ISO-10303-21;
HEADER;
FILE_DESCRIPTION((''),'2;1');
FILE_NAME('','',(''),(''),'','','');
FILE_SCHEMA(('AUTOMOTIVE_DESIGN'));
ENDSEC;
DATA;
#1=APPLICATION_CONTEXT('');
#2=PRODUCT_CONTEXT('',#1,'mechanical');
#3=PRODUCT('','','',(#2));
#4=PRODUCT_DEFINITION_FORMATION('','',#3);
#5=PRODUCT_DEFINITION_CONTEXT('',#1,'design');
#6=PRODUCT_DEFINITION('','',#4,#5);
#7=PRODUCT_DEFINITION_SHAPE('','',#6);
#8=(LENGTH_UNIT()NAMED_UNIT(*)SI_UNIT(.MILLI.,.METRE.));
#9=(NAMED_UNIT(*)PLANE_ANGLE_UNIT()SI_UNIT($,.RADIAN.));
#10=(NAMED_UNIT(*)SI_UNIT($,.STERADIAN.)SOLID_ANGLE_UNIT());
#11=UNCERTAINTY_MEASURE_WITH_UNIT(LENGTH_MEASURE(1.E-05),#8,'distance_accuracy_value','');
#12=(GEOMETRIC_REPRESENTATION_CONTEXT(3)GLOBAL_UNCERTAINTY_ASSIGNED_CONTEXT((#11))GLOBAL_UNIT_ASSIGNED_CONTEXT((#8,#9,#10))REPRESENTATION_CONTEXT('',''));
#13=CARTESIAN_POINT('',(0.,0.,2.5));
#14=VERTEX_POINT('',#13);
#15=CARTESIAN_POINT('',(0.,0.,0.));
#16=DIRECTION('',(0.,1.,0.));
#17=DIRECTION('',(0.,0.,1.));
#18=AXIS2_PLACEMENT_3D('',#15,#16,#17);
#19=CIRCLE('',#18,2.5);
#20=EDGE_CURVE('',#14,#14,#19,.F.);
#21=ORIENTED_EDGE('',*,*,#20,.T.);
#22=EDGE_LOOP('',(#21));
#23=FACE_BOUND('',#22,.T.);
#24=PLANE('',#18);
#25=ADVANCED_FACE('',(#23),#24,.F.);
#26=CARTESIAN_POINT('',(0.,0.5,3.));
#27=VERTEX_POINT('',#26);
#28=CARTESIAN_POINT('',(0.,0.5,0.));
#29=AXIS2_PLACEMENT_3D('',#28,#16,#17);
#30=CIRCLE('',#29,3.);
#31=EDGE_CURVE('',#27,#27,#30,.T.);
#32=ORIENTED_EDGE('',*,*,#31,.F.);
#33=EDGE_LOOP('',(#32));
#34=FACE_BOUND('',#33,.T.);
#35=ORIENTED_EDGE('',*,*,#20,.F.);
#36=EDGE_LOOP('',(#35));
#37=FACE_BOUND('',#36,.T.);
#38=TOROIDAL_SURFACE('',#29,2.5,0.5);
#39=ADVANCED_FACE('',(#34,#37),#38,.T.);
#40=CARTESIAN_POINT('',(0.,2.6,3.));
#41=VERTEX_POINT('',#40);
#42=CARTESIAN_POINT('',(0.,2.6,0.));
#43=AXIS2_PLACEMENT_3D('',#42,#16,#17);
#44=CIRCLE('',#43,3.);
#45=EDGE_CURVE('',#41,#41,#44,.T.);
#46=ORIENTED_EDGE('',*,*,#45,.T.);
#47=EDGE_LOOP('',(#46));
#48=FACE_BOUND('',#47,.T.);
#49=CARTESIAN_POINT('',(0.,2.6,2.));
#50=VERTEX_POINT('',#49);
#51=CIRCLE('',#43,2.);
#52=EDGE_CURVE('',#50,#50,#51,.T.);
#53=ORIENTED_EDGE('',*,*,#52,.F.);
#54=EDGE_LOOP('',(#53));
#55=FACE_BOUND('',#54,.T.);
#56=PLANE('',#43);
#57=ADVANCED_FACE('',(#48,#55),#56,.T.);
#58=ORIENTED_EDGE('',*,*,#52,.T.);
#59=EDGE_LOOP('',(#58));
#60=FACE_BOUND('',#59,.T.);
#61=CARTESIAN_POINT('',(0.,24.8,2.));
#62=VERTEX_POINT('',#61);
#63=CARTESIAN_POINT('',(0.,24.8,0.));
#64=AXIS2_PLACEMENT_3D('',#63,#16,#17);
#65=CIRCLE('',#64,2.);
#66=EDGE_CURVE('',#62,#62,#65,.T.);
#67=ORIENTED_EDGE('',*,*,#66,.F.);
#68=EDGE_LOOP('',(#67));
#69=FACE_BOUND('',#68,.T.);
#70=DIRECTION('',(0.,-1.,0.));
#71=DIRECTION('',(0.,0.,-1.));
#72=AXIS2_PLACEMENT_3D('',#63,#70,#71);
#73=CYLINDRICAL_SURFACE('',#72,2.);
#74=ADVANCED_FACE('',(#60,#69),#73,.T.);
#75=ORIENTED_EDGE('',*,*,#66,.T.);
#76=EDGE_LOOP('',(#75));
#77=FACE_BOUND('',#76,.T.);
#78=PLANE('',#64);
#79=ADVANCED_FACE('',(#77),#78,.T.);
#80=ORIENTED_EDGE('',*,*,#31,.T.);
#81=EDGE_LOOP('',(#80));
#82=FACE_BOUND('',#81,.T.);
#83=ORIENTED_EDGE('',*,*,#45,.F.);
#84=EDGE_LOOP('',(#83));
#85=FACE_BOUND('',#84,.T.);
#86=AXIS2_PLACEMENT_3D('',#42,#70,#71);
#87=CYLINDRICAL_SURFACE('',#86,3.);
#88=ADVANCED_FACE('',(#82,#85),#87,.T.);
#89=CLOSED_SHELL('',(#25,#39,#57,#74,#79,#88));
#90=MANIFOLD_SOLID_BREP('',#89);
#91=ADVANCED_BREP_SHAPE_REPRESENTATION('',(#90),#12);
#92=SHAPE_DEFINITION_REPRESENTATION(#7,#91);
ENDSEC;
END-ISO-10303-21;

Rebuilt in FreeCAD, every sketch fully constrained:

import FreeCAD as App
import Part
import Sketcher
from FreeCAD import Vector


def edges_at(feature, points):
    """Names of the edges that pass closest to the given points."""
    edges = feature.Shape.Edges
    near = lambda p: min(range(len(edges)), key=lambda i: edges[i].distToShape(Part.Vertex(*p))[0])
    return sorted({f"Edge{near(p) + 1}" for p in points})

doc = App.newDocument("Part")
body = doc.addObject("PartDesign::Body", "Body")

sketch1 = body.newObject("Sketcher::SketchObject", "Sketch")
sketch1.AttachmentSupport = (doc.getObject("XZ_Plane"), [""])
sketch1.MapMode = "FlatFace"
sketch1.addGeometry(Part.Circle(Vector(0, 0, 0), Vector(0, 0, 1), 3), False)
sketch1.addConstraint(Sketcher.Constraint("Coincident", 0, 3, -1, 1))
sketch1.addConstraint(Sketcher.Constraint("Diameter", 0, 6.0))
pad1 = body.newObject("PartDesign::Pad", "Pad")
pad1.Profile = sketch1
pad1.Length = 2.6
pad1.Reversed = True

sketch2 = body.newObject("Sketcher::SketchObject", "Sketch001")
sketch2.AttachmentSupport = (doc.getObject("XZ_Plane"), [""])
sketch2.MapMode = "FlatFace"
sketch2.AttachmentOffset = App.Placement(Vector(0, 0, -2.6), App.Rotation())
sketch2.addGeometry(Part.Circle(Vector(0, 0, 0), Vector(0, 0, 1), 2), False)
sketch2.addConstraint(Sketcher.Constraint("Coincident", 0, 3, -1, 1))
sketch2.addConstraint(Sketcher.Constraint("Diameter", 0, 4.0))
pad2 = body.newObject("PartDesign::Pad", "Pad001")
pad2.Profile = sketch2
pad2.Length = 22.2
pad2.Reversed = True
doc.recompute()

fillet = body.newObject("PartDesign::Fillet", "Fillet")
fillet.Base = (pad2, edges_at(pad2, [(0, 0, -3)]))
fillet.Radius = 0.5

doc.recompute()
